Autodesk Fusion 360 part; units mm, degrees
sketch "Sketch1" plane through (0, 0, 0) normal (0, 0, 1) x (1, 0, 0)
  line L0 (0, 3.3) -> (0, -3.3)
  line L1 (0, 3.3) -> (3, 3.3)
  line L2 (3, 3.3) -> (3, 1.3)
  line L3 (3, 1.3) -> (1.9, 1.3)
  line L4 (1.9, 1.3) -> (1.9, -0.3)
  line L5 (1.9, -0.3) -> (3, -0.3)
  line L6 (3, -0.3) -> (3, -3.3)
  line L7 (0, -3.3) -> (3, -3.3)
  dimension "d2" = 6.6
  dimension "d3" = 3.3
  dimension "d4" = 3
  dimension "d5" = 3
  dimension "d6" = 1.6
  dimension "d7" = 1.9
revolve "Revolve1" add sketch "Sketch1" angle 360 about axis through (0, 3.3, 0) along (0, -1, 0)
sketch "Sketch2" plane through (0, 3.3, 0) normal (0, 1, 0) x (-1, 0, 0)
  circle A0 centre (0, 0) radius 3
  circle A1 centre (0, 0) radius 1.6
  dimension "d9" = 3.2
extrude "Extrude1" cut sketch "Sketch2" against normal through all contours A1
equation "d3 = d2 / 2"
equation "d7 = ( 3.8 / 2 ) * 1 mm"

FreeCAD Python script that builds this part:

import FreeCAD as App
import Part
import Sketcher
from FreeCAD import Vector


def add_polygon(sketch, points):
    """Adds a closed chain of lines whose ends are joined by coincident constraints."""
    first, n = sketch.GeometryCount, len(points)
    for a, b in zip(points, points[1:] + points[:1]):
        sketch.addGeometry(Part.LineSegment(App.Vector(*a, 0), App.Vector(*b, 0)), False)
    for i in range(n):
        sketch.addConstraint(Sketcher.Constraint("Coincident", first + i, 2, first + (i + 1) % n, 1))

doc = App.newDocument("Part")
params = doc.addObject("Spreadsheet::Sheet", "Params")
for row, (alias, value) in enumerate([
    ("sketch1_width", "3 mm"),
    ("sketch1_height", "6.6 mm"),
    ("sketch1_height2", "1.6 mm"),
    ("revolution_angle", "360 deg"),
    ("sketch2_diameter", "3.2 mm"),
], start=1):
    params.set(f"A{row}", alias)
    params.set(f"B{row}", "=" + value)
    params.setAlias(f"B{row}", alias)

body = doc.addObject("PartDesign::Body", "Body")

sketch1 = body.newObject("Sketcher::SketchObject", "Sketch")
sketch1.AttachmentSupport = (doc.getObject("XY_Plane"), [""])
sketch1.MapMode = "FlatFace"
add_polygon(sketch1, [(3, 3.3), (0, 3.3), (0, -3.3), (3, -3.3), (3, -0.3), (1.9, -0.3), (1.9, 1.3), (3, 1.3)])
sketch1.addConstraint([
    Sketcher.Constraint("Horizontal", 0),
    Sketcher.Constraint("Vertical", 1),
    Sketcher.Constraint("Horizontal", 2),
    Sketcher.Constraint("Vertical", 3),
    Sketcher.Constraint("Horizontal", 4),
    Sketcher.Constraint("Vertical", 5),
    Sketcher.Constraint("Horizontal", 6),
    Sketcher.Constraint("Vertical", 7),
    Sketcher.Constraint("Symmetric", 0, 2, 1, 2, -1, 1),
    Sketcher.Constraint("Vertical", 3, 2, 6, 2),
    Sketcher.Constraint("Equal", 2, 3),
    Sketcher.Constraint("DistanceX", 0, 2, 0, 1, 3.0),
    Sketcher.Constraint("DistanceY", 1, 2, 1, 1, 6.6),
    Sketcher.Constraint("DistanceY", 5, 1, 5, 2, 1.6),
    Sketcher.Constraint("DistanceX", -1, 1, 4, 2, 1.9),
])
sketch1.setExpression("Constraints[19]", "Params.sketch1_width")
sketch1.setExpression("Constraints[20]", "Params.sketch1_height")
sketch1.setExpression("Constraints[21]", "Params.sketch1_height2")
revolution = body.newObject("PartDesign::Revolution", "Revolution")
revolution.Profile = sketch1
revolution.ReferenceAxis = (sketch1, ["V_Axis"])
revolution.setExpression("Angle", "Params.revolution_angle")

sketch2 = body.newObject("Sketcher::SketchObject", "Sketch001")
sketch2.AttachmentSupport = (doc.getObject("XZ_Plane"), [""])
sketch2.MapMode = "FlatFace"
sketch2.AttachmentOffset = App.Placement(Vector(0, 0, -3.3), App.Rotation())
sketch2.addGeometry(Part.Circle(Vector(0, 0, 0), Vector(0, 0, 1), 1.6), False)
sketch2.addConstraint([
    Sketcher.Constraint("Coincident", 0, 3, -1, 1),
    Sketcher.Constraint("Diameter", 0, 3.2),
])
sketch2.setExpression("Constraints[1]", "Params.sketch2_diameter")
pocket1 = body.newObject("PartDesign::Pocket", "Pocket")
pocket1.Profile = sketch2
pocket1.Type = "ThroughAll"
pocket1.Reversed = True

doc.recompute()
